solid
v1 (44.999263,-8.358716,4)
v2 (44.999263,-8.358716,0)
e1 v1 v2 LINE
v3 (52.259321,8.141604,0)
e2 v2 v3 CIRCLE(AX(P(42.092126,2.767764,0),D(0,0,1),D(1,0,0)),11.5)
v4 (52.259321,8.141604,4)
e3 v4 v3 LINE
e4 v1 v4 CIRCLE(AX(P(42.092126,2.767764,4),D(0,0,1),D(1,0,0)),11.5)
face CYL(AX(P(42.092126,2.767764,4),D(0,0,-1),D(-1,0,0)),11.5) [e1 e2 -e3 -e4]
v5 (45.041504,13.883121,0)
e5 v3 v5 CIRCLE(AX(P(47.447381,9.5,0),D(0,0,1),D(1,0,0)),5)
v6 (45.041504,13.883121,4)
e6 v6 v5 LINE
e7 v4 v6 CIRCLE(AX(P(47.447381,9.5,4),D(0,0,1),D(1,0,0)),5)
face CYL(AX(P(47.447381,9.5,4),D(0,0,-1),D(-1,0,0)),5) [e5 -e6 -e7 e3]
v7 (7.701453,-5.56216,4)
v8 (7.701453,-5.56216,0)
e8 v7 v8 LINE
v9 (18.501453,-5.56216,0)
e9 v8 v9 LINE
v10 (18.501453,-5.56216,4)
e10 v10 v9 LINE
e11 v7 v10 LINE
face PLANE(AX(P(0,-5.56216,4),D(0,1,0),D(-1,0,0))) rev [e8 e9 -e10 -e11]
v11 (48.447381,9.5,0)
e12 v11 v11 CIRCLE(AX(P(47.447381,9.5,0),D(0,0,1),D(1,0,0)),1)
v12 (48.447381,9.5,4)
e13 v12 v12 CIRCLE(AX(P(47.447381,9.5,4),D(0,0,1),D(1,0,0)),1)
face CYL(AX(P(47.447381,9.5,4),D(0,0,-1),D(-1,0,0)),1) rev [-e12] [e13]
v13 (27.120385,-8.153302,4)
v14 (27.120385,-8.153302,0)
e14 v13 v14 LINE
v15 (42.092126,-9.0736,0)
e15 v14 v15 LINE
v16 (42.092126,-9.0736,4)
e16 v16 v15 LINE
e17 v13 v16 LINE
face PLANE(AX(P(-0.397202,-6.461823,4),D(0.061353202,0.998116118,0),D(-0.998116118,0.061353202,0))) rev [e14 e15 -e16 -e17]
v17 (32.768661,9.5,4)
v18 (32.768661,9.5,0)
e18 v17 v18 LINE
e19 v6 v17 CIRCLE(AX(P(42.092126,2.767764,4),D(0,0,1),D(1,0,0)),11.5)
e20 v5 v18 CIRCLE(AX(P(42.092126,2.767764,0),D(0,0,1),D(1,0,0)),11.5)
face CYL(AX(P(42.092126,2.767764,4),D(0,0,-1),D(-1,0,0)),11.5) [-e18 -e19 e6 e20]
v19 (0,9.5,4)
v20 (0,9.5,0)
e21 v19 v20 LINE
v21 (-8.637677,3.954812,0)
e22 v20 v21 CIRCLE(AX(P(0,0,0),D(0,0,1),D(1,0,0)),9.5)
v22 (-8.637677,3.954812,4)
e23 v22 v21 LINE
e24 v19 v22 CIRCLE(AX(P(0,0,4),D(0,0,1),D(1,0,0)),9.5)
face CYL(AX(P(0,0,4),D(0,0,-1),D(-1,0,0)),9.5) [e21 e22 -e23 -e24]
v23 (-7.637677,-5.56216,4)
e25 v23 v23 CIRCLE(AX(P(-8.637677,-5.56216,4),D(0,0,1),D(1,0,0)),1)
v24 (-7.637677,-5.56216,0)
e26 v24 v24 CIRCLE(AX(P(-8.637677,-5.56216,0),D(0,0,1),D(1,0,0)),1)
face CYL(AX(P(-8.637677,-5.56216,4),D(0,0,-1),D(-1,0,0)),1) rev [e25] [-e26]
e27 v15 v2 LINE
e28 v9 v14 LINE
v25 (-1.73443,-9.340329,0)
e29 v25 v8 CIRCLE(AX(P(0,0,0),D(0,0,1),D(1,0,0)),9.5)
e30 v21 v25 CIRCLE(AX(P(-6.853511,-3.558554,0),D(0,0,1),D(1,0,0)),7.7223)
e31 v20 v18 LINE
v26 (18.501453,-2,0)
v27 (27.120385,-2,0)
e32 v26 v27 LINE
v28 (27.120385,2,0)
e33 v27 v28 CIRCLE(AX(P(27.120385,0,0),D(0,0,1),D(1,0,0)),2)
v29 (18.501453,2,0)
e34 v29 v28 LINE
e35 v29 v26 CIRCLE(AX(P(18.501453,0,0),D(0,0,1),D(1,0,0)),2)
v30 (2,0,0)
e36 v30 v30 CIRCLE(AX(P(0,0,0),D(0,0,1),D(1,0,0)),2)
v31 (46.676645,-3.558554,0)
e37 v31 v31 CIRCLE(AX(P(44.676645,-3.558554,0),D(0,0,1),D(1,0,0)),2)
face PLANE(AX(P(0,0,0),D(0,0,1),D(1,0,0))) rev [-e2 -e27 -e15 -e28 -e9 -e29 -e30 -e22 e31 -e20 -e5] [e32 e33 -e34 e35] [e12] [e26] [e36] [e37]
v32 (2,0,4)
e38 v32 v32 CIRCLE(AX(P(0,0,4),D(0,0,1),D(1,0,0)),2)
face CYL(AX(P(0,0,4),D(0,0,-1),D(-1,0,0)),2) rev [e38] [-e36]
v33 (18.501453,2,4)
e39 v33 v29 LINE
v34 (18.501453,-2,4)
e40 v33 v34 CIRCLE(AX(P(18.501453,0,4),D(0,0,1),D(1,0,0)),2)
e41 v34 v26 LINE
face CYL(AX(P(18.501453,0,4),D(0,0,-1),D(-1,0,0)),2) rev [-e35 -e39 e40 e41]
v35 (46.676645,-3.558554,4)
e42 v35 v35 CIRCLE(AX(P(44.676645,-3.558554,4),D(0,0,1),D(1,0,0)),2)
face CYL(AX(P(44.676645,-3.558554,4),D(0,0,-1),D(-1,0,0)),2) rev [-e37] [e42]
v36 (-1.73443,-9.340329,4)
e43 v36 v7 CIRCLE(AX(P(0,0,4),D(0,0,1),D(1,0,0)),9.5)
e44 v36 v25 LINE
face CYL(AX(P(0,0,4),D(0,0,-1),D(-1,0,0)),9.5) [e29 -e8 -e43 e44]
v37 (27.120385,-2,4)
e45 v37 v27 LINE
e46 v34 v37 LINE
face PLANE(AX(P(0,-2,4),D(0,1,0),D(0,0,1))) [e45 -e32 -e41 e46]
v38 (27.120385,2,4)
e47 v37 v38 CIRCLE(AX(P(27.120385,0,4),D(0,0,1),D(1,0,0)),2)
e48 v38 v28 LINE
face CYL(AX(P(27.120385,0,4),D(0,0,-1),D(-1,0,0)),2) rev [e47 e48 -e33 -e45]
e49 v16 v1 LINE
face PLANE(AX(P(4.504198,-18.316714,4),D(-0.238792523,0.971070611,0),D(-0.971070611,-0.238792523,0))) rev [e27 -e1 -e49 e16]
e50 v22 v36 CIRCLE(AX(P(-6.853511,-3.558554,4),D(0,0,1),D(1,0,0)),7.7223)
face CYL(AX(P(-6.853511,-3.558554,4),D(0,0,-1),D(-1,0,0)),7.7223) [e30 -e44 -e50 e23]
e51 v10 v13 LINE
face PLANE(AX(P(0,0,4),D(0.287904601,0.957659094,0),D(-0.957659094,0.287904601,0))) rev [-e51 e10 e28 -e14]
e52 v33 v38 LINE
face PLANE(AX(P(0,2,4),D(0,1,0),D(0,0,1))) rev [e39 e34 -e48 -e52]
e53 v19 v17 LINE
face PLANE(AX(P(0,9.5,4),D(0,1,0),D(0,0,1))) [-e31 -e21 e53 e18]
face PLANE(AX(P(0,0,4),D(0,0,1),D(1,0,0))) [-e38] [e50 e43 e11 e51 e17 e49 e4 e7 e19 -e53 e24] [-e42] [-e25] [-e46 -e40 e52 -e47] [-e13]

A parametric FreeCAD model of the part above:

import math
import FreeCAD as App
import Part
import Sketcher

V = App.Vector
Q = App.Units.Quantity

doc = App.newDocument("Part")
body = doc.addObject("PartDesign::Body", "Body")

# Sketch on XY plane
sketch1 = doc.addObject("Sketcher::SketchObject", "Sketch")
body.addObject(sketch1)
sketch1.AttachmentSupport = (doc.XY_Plane, [""])
sketch1.MapMode = "FlatFace"
sketch1.addGeometry(Part.LineSegment(V(32.77, 9.5, 0), V(0, 9.5, 0)), False)
sketch1.addGeometry(Part.ArcOfCircle(Part.Circle(V(0, 0, 0), V(0, 0, 1), 9.5), math.radians(90), math.radians(155)), False)
sketch1.addGeometry(Part.ArcOfCircle(Part.Circle(V(-6.85, -3.56, 0), V(0, 0, 1), 7.72), math.radians(103), math.radians(312)), False)
sketch1.addGeometry(Part.ArcOfCircle(Part.Circle(V(0, 0, 0), V(0, 0, 1), 9.5), math.radians(-101), math.radians(-36)), False)
sketch1.addGeometry(Part.LineSegment(V(7.7, -5.56, 0), V(18.5, -5.56, 0)), False)
sketch1.addGeometry(Part.LineSegment(V(18.5, -5.56, 0), V(27.12, -8.15, 0)), False)
sketch1.addGeometry(Part.LineSegment(V(27.12, -8.15, 0), V(42.09, -9.07, 0)), False)
sketch1.addGeometry(Part.LineSegment(V(42.09, -9.07, 0), V(44.68, -8.44, 0)), False)
sketch1.addGeometry(Part.LineSegment(V(44.68, -8.44, 0), V(45, -8.36, 0)), False)
sketch1.addGeometry(Part.ArcOfCircle(Part.Circle(V(42.09, 2.77, 0), V(0, 0, 1), 11.5), math.radians(-75), math.radians(28)), False)
sketch1.addGeometry(Part.ArcOfCircle(Part.Circle(V(47.45, 9.5, 0), V(0, 0, 1), 5), math.radians(-16), math.radians(119)), False)
sketch1.addGeometry(Part.ArcOfCircle(Part.Circle(V(42.09, 2.77, 0), V(0, 0, 1), 11.5), math.radians(75), math.radians(144)), False)
sketch1.addGeometry(Part.Circle(V(-8.64, -5.56, 0), V(0, 0, 1), 1), False)
sketch1.addGeometry(Part.Circle(V(0, 0, 0), V(0, 0, 1), 2), False)
sketch1.addGeometry(Part.Circle(V(44.68, -3.56, 0), V(0, 0, 1), 2), False)
sketch1.addGeometry(Part.LineSegment(V(27.12, -2, 0), V(18.5, -2, 0)), False)
sketch1.addGeometry(Part.ArcOfCircle(Part.Circle(V(18.5, 0, 0), V(0, 0, 1), 2), math.radians(90), math.radians(270)), False)
sketch1.addGeometry(Part.LineSegment(V(18.5, 2, 0), V(27.12, 2, 0)), False)
sketch1.addGeometry(Part.ArcOfCircle(Part.Circle(V(27.12, 0, 0), V(0, 0, 1), 2), math.radians(-90), math.radians(90)), False)
sketch1.addGeometry(Part.Circle(V(47.45, 9.5, 0), V(0, 0, 1), 1), False)
sketch1.addConstraint(Sketcher.Constraint("Tangent", 0, 2, 1, 1))
sketch1.addConstraint(Sketcher.Constraint("Coincident", 1, 2, 2, 1))
sketch1.addConstraint(Sketcher.Constraint("Coincident", 2, 2, 3, 1))
sketch1.addConstraint(Sketcher.Constraint("Coincident", 3, 2, 4, 1))
sketch1.addConstraint(Sketcher.Constraint("Coincident", 4, 2, 5, 1))
sketch1.addConstraint(Sketcher.Constraint("Coincident", 5, 2, 6, 1))
sketch1.addConstraint(Sketcher.Constraint("Coincident", 6, 2, 7, 1))
sketch1.addConstraint(Sketcher.Constraint("Coincident", 7, 2, 8, 1))
sketch1.addConstraint(Sketcher.Constraint("Coincident", 8, 2, 9, 1))
sketch1.addConstraint(Sketcher.Constraint("Coincident", 9, 2, 10, 1))
sketch1.addConstraint(Sketcher.Constraint("Coincident", 10, 2, 11, 1))
sketch1.addConstraint(Sketcher.Constraint("Coincident", 11, 2, 0, 1))
sketch1.addConstraint(Sketcher.Constraint("Tangent", 15, 2, 16, 2))
sketch1.addConstraint(Sketcher.Constraint("Tangent", 16, 1, 17, 1))
sketch1.addConstraint(Sketcher.Constraint("Tangent", 17, 2, 18, 2))
sketch1.addConstraint(Sketcher.Constraint("Tangent", 18, 1, 15, 1))
sketch1.addConstraint(Sketcher.Constraint("Horizontal", 0))
sketch1.addConstraint(Sketcher.Constraint("Horizontal", 4))
sketch1.addConstraint(Sketcher.Constraint("Horizontal", 15))
sketch1.addConstraint(Sketcher.Constraint("Horizontal", 17))
sketch1.addConstraint(Sketcher.Constraint("Coincident", 1, 3, -1, 1))
sketch1.addConstraint(Sketcher.Constraint("Coincident", 3, 3, -1, 1))
sketch1.addConstraint(Sketcher.Constraint("Coincident", 13, 3, -1, 1))
sketch1.addConstraint(Sketcher.Constraint("Coincident", 11, 3, 9, 3))
sketch1.addConstraint(Sketcher.Constraint("Coincident", 19, 3, 10, 3))
sketch1.addConstraint(Sketcher.Constraint("Equal", 1, 3))
sketch1.addConstraint(Sketcher.Constraint("Equal", 9, 11))
sketch1.addConstraint(Sketcher.Constraint("Equal", 13, 14))
sketch1.addConstraint(Sketcher.Constraint("Equal", 14, 16))
sketch1.addConstraint(Sketcher.Constraint("Equal", 12, 19))
sketch1.addConstraint(Sketcher.Constraint("PointOnObject", 16, 3, -1))
sketch1.addConstraint(Sketcher.Constraint("Parallel", 7, 8))
sketch1.addConstraint(Sketcher.Constraint("Horizontal", 2, 3, 14, 3))
sketch1.addConstraint(Sketcher.Constraint("Horizontal", 19, 3, 0, 2))
sketch1.addConstraint(Sketcher.Constraint("Horizontal", 12, 3, 3, 2))
sketch1.addConstraint(Sketcher.Constraint("Vertical", 12, 3, 1, 2))
sketch1.addConstraint(Sketcher.Constraint("Vertical", 16, 3, 4, 2))
sketch1.addConstraint(Sketcher.Constraint("Vertical", 18, 3, 5, 2))
sketch1.addConstraint(Sketcher.Constraint("Vertical", 11, 3, 6, 2))
sketch1.addConstraint(Sketcher.Constraint("Vertical", 14, 3, 7, 2))
sketch1.addConstraint(Sketcher.Constraint("Diameter", 12, Q("2 mm")))
sketch1.addConstraint(Sketcher.Constraint("Diameter", 13, Q("4 mm")))
sketch1.addConstraint(Sketcher.Constraint("Radius", 10, Q("5 mm")))
sketch1.addConstraint(Sketcher.Constraint("Radius", 1, Q("9.5 mm")))
sketch1.addConstraint(Sketcher.Constraint("Radius", 9, Q("11.5 mm")))
sketch1.addConstraint(Sketcher.Constraint("Distance", 5, Q("9 mm")))
sketch1.addConstraint(Sketcher.Constraint("Distance", 6, Q("15 mm")))
sketch1.addConstraint(Sketcher.Constraint("DistanceX", 4, 1, 4, 2, Q("10.8 mm")))
sketch1.addConstraint(Sketcher.Constraint("Radius", 2, Q("7.7223 mm")))
sketch1.addConstraint(Sketcher.Constraint("DistanceX", 0, 2, 0, 1, Q("32.768661 mm")))
sketch1.addConstraint(Sketcher.Constraint("DistanceX", 15, 2, 15, 1, Q("8.618932 mm")))
sketch1.addConstraint(Sketcher.Constraint("DistanceY", 5, 2, -1, 1, Q("8.153302 mm")))
sketch1.addConstraint(Sketcher.Constraint("DistanceY", 6, 2, -1, 1, Q("9.0736 mm")))
sketch1.addConstraint(Sketcher.Constraint("Distance", 8, Q("0.332229 mm")))
sketch1.addConstraint(Sketcher.Constraint("DistanceX", 2, 3, -1, 1, Q("6.853511 mm")))
sketch1.addConstraint(Sketcher.Constraint("DistanceX", -1, 1, 10, 3, Q("47.447381 mm")))
sketch1.addConstraint(Sketcher.Constraint("DistanceY", -1, 1, 1, 2, Q("3.954812 mm")))
sketch1.addConstraint(Sketcher.Constraint("DistanceY", 7, 2, -1, 1, Q("8.43805 mm")))
pad1 = doc.addObject("PartDesign::Pad", "Pad")
body.addObject(pad1)
pad1.Profile = sketch1
pad1.Length = 4

doc.recompute()
